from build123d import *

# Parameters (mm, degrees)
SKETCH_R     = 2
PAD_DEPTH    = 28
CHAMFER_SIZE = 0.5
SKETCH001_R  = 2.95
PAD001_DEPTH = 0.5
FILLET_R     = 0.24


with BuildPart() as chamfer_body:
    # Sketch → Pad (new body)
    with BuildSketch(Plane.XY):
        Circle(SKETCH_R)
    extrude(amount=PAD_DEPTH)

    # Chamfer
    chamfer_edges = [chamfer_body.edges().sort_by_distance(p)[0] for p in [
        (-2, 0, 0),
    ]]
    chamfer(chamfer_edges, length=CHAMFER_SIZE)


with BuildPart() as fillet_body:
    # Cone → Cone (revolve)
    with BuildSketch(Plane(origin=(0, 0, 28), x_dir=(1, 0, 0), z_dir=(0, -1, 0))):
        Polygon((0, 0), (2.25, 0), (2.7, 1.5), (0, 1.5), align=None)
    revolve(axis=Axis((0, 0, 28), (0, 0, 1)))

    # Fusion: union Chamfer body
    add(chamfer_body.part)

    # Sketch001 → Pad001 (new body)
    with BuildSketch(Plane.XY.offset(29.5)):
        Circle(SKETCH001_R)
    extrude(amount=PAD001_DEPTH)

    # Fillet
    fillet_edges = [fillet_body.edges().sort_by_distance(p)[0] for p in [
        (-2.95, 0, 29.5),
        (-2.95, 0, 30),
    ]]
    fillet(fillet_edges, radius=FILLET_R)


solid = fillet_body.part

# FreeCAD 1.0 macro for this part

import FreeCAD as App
import Part
import Sketcher
from FreeCAD import Vector
Q = App.Units.Quantity


def edges_at(feature, points):
    """Names of the edges that pass closest to the given points."""
    edges = feature.Shape.Edges
    near = lambda p: min(range(len(edges)), key=lambda i: edges[i].distToShape(Part.Vertex(*p))[0])
    return sorted({f"Edge{near(p) + 1}" for p in points})

doc = App.newDocument("Part")
body = doc.addObject("PartDesign::Body", "Body")

# Sketch on XY plane
sketch1 = doc.addObject("Sketcher::SketchObject", "Sketch")
body.addObject(sketch1)
sketch1.AttachmentSupport = (doc.XY_Plane, [""])
sketch1.MapMode = "FlatFace"
sketch1.addGeometry(Part.Circle(Vector(0, 0, 0), Vector(0, 0, 1), 2), False)
sketch1.addConstraint([
    Sketcher.Constraint("Coincident", 0, 3, -1, 1),
    Sketcher.Constraint("Diameter", 0, Q("4 mm")),
])
pad1 = doc.addObject("PartDesign::Pad", "Pad")
body.addObject(pad1)
pad1.Profile = sketch1
pad1.Length = 28
doc.recompute()

chamfer = doc.addObject("PartDesign::Chamfer", "Chamfer")
body.addObject(chamfer)
chamfer.Base = (pad1, edges_at(pad1, [(-2, 0, 0)]))
chamfer.Size = 0.5
body2 = doc.addObject("PartDesign::Body", "Body001")

# Sketch on XZ plane
sketch2 = doc.addObject("Sketcher::SketchObject", "Sketch001")
body2.addObject(sketch2)
sketch2.AttachmentSupport = (doc.getObject("XZ_Plane001"), [""])
sketch2.MapMode = "FlatFace"
sketch2.addGeometry([
    Part.LineSegment(Vector(0, 28, 0), Vector(2.2, 28, 0)),
    Part.LineSegment(Vector(2.2, 28, 0), Vector(2.7, 29.5, 0)),
    Part.LineSegment(Vector(2.7, 29.5, 0), Vector(0, 29.5, 0)),
    Part.LineSegment(Vector(0, 29.5, 0), Vector(0, 28, 0)),
], False)
sketch2.addConstraint([
    Sketcher.Constraint("Coincident", 0, 2, 1, 1),
    Sketcher.Constraint("Coincident", 1, 2, 2, 1),
    Sketcher.Constraint("Coincident", 2, 2, 3, 1),
    Sketcher.Constraint("Coincident", 3, 2, 0, 1),
    Sketcher.Constraint("Horizontal", 0),
    Sketcher.Constraint("Horizontal", 2),
    Sketcher.Constraint("Vertical", 3),
    Sketcher.Constraint("PointOnObject", 2, 2, -2),
    Sketcher.Constraint("DistanceX", 2, 2, 2, 1, Q("2.7 mm")),
    Sketcher.Constraint("DistanceY", 3, 2, 3, 1, Q("1.5 mm")),
    Sketcher.Constraint("DistanceY", -1, 1, 0, 2, Q("28 mm")),
    Sketcher.Constraint("DistanceX", 0, 1, 0, 2, Q("2.25 mm")),
])
revolution = doc.addObject("PartDesign::Revolution", "Revolution")
body2.addObject(revolution)
revolution.Profile = sketch2
revolution.ReferenceAxis = (sketch2, ["V_Axis"])
revolution.Angle = 360
doc.recompute()

boolean = doc.addObject("PartDesign::Boolean", "Boolean")
body2.addObject(boolean)
boolean.Type = "Fuse"
boolean.addObjects([body])

# Sketch on XY plane
sketch3 = doc.addObject("Sketcher::SketchObject", "Sketch002")
body2.addObject(sketch3)
sketch3.AttachmentSupport = (doc.getObject("XY_Plane001"), [""])
sketch3.MapMode = "FlatFace"
sketch3.AttachmentOffset = App.Placement(Vector(0, 0, 29.5), App.Rotation())
sketch3.addGeometry(Part.Circle(Vector(0, 0, 0), Vector(0, 0, 1), 3), False)
sketch3.addConstraint([
    Sketcher.Constraint("Coincident", 0, 3, -1, 1),
    Sketcher.Constraint("Diameter", 0, Q("5.9 mm")),
])
pad2 = doc.addObject("PartDesign::Pad", "Pad001")
body2.addObject(pad2)
pad2.Profile = sketch3
pad2.Length = 0.5
doc.recompute()

fillet = doc.addObject("PartDesign::Fillet", "Fillet")
body2.addObject(fillet)
fillet.Base = (pad2, edges_at(pad2, [(-2.95, 0, 29.5), (-2.95, 0, 30)]))
fillet.Radius = 0.24

doc.recompute()
